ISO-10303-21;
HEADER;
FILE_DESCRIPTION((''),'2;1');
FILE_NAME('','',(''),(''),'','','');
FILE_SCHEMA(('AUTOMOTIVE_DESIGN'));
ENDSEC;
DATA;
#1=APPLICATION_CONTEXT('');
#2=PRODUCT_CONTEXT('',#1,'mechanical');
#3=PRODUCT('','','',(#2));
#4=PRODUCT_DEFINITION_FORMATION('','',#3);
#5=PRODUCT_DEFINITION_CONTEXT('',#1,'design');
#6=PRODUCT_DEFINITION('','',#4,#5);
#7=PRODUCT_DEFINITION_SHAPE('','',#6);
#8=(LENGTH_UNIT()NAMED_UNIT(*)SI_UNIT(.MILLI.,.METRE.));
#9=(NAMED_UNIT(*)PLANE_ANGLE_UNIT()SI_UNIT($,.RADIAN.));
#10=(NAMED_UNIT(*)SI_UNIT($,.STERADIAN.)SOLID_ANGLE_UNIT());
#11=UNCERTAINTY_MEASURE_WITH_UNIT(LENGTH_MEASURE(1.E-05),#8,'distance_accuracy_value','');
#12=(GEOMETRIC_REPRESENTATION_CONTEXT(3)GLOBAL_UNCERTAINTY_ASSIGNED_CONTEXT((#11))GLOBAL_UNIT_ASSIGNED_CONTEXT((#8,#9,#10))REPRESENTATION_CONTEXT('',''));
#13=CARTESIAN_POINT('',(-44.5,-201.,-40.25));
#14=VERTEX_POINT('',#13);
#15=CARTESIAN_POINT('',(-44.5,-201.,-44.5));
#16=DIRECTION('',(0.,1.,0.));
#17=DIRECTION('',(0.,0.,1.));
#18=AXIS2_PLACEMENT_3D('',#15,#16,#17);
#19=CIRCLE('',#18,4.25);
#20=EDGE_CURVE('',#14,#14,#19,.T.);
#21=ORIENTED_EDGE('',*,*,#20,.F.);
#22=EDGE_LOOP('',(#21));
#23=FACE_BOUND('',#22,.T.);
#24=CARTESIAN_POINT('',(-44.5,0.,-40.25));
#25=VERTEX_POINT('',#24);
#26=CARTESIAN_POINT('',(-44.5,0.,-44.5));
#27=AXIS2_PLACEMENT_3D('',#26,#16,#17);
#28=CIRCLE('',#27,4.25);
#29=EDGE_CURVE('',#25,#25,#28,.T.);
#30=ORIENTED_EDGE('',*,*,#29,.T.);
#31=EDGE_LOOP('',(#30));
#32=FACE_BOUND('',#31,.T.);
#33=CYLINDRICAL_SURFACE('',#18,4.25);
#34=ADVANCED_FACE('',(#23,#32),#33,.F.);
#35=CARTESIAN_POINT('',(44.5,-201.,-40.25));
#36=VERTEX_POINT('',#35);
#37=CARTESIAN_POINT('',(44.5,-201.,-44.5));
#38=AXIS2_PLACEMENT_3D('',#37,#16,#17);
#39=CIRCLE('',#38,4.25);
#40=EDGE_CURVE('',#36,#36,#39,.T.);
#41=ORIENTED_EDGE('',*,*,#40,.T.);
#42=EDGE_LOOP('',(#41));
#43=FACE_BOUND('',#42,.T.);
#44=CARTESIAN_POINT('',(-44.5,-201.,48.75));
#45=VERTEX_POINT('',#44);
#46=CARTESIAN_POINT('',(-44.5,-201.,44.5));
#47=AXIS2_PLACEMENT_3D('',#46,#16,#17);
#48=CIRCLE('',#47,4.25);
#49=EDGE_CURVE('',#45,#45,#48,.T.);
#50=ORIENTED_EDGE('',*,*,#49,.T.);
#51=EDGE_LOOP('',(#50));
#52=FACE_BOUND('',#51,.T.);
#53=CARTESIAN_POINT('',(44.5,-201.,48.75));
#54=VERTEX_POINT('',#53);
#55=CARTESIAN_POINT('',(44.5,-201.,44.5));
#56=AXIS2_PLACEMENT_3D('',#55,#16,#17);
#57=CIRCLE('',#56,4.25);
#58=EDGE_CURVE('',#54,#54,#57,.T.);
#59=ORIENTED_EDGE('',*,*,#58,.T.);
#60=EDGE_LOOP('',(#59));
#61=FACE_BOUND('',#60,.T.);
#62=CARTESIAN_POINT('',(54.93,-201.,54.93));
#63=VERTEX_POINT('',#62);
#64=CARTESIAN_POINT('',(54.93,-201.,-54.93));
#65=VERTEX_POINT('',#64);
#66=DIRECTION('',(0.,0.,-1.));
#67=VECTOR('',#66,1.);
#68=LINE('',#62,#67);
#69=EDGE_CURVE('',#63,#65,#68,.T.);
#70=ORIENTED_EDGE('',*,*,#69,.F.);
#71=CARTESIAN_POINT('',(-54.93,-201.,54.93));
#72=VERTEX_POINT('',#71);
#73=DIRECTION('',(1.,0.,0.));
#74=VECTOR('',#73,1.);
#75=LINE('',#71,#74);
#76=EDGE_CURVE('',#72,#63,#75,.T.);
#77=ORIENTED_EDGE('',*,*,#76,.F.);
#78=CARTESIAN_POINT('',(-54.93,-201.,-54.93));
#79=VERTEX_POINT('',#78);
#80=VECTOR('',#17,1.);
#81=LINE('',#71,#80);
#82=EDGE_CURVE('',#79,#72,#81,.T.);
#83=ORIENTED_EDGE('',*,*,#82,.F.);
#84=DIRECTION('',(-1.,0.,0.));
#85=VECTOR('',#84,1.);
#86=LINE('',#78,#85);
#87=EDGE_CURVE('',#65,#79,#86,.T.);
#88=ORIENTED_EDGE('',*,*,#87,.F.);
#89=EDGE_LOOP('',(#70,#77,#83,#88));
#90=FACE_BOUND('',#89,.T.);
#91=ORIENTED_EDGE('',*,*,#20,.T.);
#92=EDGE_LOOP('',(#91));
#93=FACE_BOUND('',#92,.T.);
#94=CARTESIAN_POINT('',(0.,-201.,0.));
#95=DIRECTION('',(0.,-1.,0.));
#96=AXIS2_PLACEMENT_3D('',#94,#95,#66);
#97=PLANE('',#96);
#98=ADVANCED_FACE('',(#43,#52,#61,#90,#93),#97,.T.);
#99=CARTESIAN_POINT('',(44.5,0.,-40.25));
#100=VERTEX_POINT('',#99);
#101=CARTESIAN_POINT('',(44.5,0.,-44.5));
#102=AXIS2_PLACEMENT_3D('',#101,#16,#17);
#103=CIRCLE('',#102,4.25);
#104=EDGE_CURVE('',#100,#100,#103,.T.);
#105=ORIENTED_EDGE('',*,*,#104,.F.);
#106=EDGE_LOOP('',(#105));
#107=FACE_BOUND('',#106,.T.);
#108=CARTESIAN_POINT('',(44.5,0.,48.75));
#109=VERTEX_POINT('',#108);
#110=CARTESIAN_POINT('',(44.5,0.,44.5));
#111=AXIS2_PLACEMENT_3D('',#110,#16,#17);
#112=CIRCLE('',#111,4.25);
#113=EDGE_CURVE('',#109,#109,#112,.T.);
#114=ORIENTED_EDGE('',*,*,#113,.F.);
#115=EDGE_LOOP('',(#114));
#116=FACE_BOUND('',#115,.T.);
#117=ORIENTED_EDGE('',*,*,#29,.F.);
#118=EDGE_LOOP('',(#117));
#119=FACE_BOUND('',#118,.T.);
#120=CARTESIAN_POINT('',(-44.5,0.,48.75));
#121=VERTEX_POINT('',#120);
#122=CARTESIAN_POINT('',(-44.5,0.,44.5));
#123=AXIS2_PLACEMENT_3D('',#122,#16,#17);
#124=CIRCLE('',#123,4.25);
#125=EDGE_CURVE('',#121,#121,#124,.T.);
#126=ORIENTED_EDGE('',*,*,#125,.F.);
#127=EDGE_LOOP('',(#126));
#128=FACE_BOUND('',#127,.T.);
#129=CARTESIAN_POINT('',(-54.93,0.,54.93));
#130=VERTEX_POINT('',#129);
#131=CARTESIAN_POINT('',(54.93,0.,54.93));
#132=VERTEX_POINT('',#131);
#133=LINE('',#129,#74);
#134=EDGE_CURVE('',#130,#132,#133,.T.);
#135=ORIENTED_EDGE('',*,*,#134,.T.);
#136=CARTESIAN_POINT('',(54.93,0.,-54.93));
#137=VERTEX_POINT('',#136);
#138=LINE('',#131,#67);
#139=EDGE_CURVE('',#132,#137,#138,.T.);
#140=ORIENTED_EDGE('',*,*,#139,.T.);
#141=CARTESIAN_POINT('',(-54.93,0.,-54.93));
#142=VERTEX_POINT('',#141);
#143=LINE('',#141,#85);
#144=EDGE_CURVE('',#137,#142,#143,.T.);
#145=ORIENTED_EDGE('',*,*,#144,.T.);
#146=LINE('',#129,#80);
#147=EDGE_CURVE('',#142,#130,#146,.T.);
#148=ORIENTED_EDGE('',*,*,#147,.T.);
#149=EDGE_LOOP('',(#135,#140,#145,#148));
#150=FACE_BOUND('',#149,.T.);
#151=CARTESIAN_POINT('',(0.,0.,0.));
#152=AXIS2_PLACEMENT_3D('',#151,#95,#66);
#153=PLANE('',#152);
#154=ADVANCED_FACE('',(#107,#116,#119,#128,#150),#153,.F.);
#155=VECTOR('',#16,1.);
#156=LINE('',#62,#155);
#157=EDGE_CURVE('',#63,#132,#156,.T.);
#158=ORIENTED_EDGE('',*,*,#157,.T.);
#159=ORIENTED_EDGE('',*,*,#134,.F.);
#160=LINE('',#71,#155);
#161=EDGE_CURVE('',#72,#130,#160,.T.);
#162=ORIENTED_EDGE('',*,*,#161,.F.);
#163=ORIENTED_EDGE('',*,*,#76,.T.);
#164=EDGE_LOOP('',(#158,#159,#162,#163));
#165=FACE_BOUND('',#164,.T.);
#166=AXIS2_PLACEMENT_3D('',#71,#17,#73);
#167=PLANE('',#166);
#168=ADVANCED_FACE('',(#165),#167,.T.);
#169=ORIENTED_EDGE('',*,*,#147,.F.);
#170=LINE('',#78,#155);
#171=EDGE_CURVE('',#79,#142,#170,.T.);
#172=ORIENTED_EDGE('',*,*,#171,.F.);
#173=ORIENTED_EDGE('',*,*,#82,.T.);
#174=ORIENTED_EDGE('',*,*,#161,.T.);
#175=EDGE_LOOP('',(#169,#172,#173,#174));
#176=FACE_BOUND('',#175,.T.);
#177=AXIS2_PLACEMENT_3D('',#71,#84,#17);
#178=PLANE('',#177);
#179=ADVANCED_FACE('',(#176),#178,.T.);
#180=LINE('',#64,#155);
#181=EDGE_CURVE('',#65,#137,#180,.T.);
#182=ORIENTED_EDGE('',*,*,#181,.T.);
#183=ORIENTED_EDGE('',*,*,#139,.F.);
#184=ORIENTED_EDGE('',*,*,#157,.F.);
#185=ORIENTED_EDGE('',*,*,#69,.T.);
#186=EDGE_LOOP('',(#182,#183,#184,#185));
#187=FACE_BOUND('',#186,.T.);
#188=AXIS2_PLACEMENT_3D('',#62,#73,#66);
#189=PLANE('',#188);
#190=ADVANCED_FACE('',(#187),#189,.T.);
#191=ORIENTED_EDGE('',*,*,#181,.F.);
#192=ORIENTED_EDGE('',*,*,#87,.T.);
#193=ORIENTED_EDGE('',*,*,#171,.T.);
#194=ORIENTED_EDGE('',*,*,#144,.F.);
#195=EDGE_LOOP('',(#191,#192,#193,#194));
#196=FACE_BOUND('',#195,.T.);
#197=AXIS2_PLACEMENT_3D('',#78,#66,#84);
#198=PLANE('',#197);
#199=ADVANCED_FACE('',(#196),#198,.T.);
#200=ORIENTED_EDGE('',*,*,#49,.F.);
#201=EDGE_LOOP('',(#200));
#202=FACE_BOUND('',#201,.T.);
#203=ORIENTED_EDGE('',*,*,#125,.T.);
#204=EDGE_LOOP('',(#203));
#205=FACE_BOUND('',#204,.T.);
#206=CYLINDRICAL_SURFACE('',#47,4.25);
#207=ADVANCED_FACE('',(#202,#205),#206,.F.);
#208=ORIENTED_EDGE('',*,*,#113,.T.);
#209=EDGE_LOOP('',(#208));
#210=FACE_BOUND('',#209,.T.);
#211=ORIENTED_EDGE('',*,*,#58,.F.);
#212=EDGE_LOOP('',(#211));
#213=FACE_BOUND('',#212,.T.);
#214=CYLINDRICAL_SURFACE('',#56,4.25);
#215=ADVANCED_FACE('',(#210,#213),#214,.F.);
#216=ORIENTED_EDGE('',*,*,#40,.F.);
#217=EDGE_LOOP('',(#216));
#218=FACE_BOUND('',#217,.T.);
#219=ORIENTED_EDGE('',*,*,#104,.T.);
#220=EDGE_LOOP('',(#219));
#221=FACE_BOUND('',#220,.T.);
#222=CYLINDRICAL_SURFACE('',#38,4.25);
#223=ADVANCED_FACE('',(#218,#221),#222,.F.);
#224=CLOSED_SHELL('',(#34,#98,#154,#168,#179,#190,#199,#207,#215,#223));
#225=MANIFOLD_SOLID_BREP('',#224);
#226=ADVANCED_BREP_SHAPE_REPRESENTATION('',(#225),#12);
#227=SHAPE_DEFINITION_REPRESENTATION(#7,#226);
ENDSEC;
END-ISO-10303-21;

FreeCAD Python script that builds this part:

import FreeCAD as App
import Part
import Sketcher


def add_polygon(sketch, points):
    """Adds a closed chain of lines whose ends are joined by coincident constraints."""
    first, n = sketch.GeometryCount, len(points)
    for a, b in zip(points, points[1:] + points[:1]):
        sketch.addGeometry(Part.LineSegment(App.Vector(*a, 0), App.Vector(*b, 0)), False)
    for i in range(n):
        sketch.addConstraint(Sketcher.Constraint("Coincident", first + i, 2, first + (i + 1) % n, 1))

doc = App.newDocument("Part")
body = doc.addObject("PartDesign::Body", "Body")

sketch1 = body.newObject("Sketcher::SketchObject", "Sketch")
sketch1.AttachmentSupport = (doc.getObject("XZ_Plane"), [""])
sketch1.MapMode = "FlatFace"
add_polygon(sketch1, [(-54.93, -54.93), (-54.93, 54.93), (54.93, 54.93), (54.93, -54.93)])
sketch1.addGeometry(Part.Circle(App.Vector(-44.5, 44.5, 0), App.Vector(0, 0, 1), 4.25), False)
sketch1.addGeometry(Part.Circle(App.Vector(44.5, 44.5, 0), App.Vector(0, 0, 1), 4.25), False)
sketch1.addGeometry(Part.Circle(App.Vector(-44.5, -44.5, 0), App.Vector(0, 0, 1), 4.25), False)
sketch1.addGeometry(Part.Circle(App.Vector(44.5, -44.5, 0), App.Vector(0, 0, 1), 4.25), False)
sketch1.addConstraint([
    Sketcher.Constraint("Vertical", 0),
    Sketcher.Constraint("Horizontal", 1),
    Sketcher.Constraint("Vertical", 2),
    Sketcher.Constraint("Horizontal", 3),
    Sketcher.Constraint("Equal", 4, 5),
    Sketcher.Constraint("Equal", 5, 6),
    Sketcher.Constraint("Equal", 6, 7),
    Sketcher.Constraint("Symmetric", 5, 3, 6, 3, -1, 1),
    Sketcher.Constraint("Symmetric", 4, 3, 7, 3, -1, 1),
    Sketcher.Constraint("Symmetric", 0, 2, 2, 2, -1, 1),
    Sketcher.Constraint("Symmetric", 4, 3, 5, 3, -2),
    Sketcher.Constraint("Equal", 3, 0),
    Sketcher.Constraint("Diameter", 4, 8.5),
    Sketcher.Constraint("DistanceX", 4, 3, 5, 3, 89.0),
    Sketcher.Constraint("DistanceY", 6, 3, 4, 3, 89.0),
    Sketcher.Constraint("DistanceX", 1, 1, 1, 2, 109.86),
])
pad1 = body.newObject("PartDesign::Pad", "Pad")
pad1.Profile = sketch1
pad1.Length = 201

doc.recompute()
